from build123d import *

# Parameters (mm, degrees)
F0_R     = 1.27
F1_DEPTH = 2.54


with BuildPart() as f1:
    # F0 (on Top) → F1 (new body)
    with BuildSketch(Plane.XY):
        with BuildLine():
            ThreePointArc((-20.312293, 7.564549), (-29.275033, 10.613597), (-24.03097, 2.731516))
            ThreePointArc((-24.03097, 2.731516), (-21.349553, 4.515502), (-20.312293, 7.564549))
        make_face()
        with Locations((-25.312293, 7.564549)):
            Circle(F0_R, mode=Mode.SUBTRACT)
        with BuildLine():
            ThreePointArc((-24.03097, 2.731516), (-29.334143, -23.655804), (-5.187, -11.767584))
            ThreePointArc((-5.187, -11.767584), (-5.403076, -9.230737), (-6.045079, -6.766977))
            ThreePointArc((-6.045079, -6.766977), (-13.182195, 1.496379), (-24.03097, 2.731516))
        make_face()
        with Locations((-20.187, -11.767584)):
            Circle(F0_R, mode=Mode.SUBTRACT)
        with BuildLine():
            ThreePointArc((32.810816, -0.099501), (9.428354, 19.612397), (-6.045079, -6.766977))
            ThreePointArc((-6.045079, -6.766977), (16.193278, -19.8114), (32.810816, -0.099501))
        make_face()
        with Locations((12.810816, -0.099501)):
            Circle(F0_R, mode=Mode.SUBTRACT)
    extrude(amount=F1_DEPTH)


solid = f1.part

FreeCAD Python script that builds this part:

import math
import FreeCAD as App
import Part
import Sketcher

V = App.Vector

doc = App.newDocument("Part")
params = doc.addObject("Spreadsheet::Sheet", "Params")
for row, (alias, value) in enumerate([
    ("sketch1_radius", "5 mm"),
    ("sketch1_radius2", "15 mm"),
    ("sketch1_radius3", "20 mm"),
    ("sketch1_diameter", "2.54 mm"),
    ("pad1_length", "2.54 mm"),
], start=1):
    params.set(f"A{row}", alias)
    params.set(f"B{row}", "=" + value)
    params.setAlias(f"B{row}", alias)

body = doc.addObject("PartDesign::Body", "Body")
body.AllowCompound = True

sketch1 = body.newObject("Sketcher::SketchObject", "Sketch")
sketch1.AttachmentSupport = (doc.getObject("XY_Plane"), [""])
sketch1.MapMode = "FlatFace"
sketch1.addGeometry([
    Part.ArcOfCircle(Part.Circle(V(-25.3, 7.6, 0), V(0, 0, 1), 5), math.radians(0), math.radians(285)),
    Part.ArcOfCircle(Part.Circle(V(-25.3, 7.6, 0), V(0, 0, 1), 5), math.radians(-75), math.radians(0)),
    Part.Circle(V(-25.3, 7.6, 0), V(0, 0, 1), 1.3),
    Part.ArcOfCircle(Part.Circle(V(-20.2, -11.8, 0), V(0, 0, 1), 15), math.radians(105), math.radians(360)),
    Part.ArcOfCircle(Part.Circle(V(-20.2, -11.8, 0), V(0, 0, 1), 15), math.radians(0), math.radians(19.47)),
    Part.ArcOfCircle(Part.Circle(V(-20.2, -11.8, 0), V(0, 0, 1), 15), math.radians(19), math.radians(105)),
    Part.Circle(V(-20.2, -11.8, 0), V(0, 0, 1), 1.3),
    Part.ArcOfCircle(Part.Circle(V(12.8, -0.1, 0), V(0, 0, 1), 20), math.radians(0), math.radians(199)),
    Part.ArcOfCircle(Part.Circle(V(12.8, -0.1, 0), V(0, 0, 1), 20), math.radians(-161), math.radians(0)),
    Part.Circle(V(12.8, -0.1, 0), V(0, 0, 1), 1.3),
], False)
sketch1.addConstraint([
    Sketcher.Constraint("Tangent", 0, 1, 1, 2),
    Sketcher.Constraint("Coincident", 1, 1, 0, 2),
    Sketcher.Constraint("Tangent", 3, 2, 4, 1),
    Sketcher.Constraint("Tangent", 4, 2, 5, 1),
    Sketcher.Constraint("Tangent", 5, 2, 3, 1),
    Sketcher.Constraint("Tangent", 7, 1, 8, 2),
    Sketcher.Constraint("Coincident", 8, 1, 7, 2),
    Sketcher.Constraint("Coincident", 2, 3, 0, 3),
    Sketcher.Constraint("Coincident", 6, 3, 3, 3),
    Sketcher.Constraint("Coincident", 9, 3, 7, 3),
    Sketcher.Constraint("Coincident", 5, 2, 1, 1),
    Sketcher.Constraint("Coincident", 8, 1, 4, 2),
    Sketcher.Constraint("Equal", 2, 6),
    Sketcher.Constraint("Equal", 6, 9),
    Sketcher.Constraint("Horizontal", 2, 3, 0, 1),
    Sketcher.Constraint("Horizontal", 6, 3, 3, 2),
    Sketcher.Constraint("Horizontal", 9, 3, 7, 1),
    Sketcher.Constraint("Radius", 0, 5.0),
    Sketcher.Constraint("Radius", 3, 15.0),
    Sketcher.Constraint("Radius", 7, 20.0),
    Sketcher.Constraint("Diameter", 2, 2.54),
    Sketcher.Constraint("DistanceX", 3, 3, -1, 1, 20.187),
    Sketcher.Constraint("DistanceY", 7, 3, -1, 1, 0.099502),
    Sketcher.Constraint("DistanceY", 5, 3, 1, 1, 14.499099),
    Sketcher.Constraint("DistanceY", -1, 1, 0, 3, 7.564549),
    Sketcher.Constraint("DistanceX", 4, 2, -1, 1, 6.045079),
    Sketcher.Constraint("DistanceY", 4, 3, 7, 3, 11.668082),
])
sketch1.setExpression("Constraints[17]", "Params.sketch1_radius")
sketch1.setExpression("Constraints[18]", "Params.sketch1_radius2")
sketch1.setExpression("Constraints[19]", "Params.sketch1_radius3")
sketch1.setExpression("Constraints[20]", "Params.sketch1_diameter")
pad1 = body.newObject("PartDesign::Pad", "Pad")
pad1.Profile = sketch1
pad1.setExpression("Length", "Params.pad1_length")

doc.recompute()
